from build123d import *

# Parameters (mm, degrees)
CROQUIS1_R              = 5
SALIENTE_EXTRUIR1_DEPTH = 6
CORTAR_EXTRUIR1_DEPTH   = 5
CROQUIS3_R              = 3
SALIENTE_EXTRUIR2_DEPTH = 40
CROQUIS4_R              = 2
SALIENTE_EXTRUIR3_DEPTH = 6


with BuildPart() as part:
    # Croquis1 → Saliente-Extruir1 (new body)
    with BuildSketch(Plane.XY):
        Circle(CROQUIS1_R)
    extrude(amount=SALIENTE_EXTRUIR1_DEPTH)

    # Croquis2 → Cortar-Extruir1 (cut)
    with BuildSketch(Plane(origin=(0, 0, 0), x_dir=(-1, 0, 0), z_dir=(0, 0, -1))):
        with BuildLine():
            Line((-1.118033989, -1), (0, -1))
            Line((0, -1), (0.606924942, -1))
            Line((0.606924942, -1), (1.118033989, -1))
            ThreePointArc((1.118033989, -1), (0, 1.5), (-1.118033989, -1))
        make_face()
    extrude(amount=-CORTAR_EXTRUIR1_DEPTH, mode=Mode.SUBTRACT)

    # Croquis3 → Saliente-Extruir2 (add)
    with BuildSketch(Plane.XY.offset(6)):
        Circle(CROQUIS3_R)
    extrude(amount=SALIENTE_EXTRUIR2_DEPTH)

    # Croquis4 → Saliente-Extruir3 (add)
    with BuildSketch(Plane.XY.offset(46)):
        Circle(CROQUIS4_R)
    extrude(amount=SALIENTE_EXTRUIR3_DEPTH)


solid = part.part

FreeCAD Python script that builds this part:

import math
import FreeCAD as App
import Part
import Sketcher

V = App.Vector

doc = App.newDocument("Part")
body = doc.addObject("PartDesign::Body", "Body")

# Sketch on XY plane
sketch1 = doc.addObject("Sketcher::SketchObject", "Sketch")
body.addObject(sketch1)
sketch1.AttachmentSupport = (doc.XY_Plane, [""])
sketch1.MapMode = "FlatFace"
sketch1.addGeometry(Part.Circle(V(0, 0, 0), V(0, 0, 1), 5), False)
sketch1.addConstraint(Sketcher.Constraint("Coincident", 0, 3, -1, 1))
sketch1.addConstraint(Sketcher.Constraint("Diameter", 0, 10.0))
pad1 = doc.addObject("PartDesign::Pad", "Pad")
body.addObject(pad1)
pad1.Profile = sketch1
pad1.Length = 6

# Sketch on XY plane
sketch2 = doc.addObject("Sketcher::SketchObject", "Sketch001")
body.addObject(sketch2)
sketch2.AttachmentSupport = (doc.XY_Plane, [""])
sketch2.MapMode = "FlatFace"
sketch2.addGeometry(Part.LineSegment(V(1.1, -1, 0), V(-1.1, -1, 0)), False)
sketch2.addGeometry(Part.ArcOfCircle(Part.Circle(V(0, 0, 0), V(0, 0, 1), 1.5), math.radians(-42), math.radians(222)), False)
sketch2.addConstraint(Sketcher.Constraint("Coincident", 0, 1, 1, 1))
sketch2.addConstraint(Sketcher.Constraint("Coincident", 1, 2, 0, 2))
sketch2.addConstraint(Sketcher.Constraint("Horizontal", 0))
sketch2.addConstraint(Sketcher.Constraint("Coincident", 1, 3, -1, 1))
sketch2.addConstraint(Sketcher.Constraint("Radius", 1, 1.5))
sketch2.addConstraint(Sketcher.Constraint("DistanceY", 0, 1, -1, 1, 1.0))
pocket1 = doc.addObject("PartDesign::Pocket", "Pocket")
body.addObject(pocket1)
pocket1.Profile = sketch2
pocket1.Length = 5
pocket1.Reversed = True

# Sketch on XY plane
sketch3 = doc.addObject("Sketcher::SketchObject", "Sketch002")
body.addObject(sketch3)
sketch3.AttachmentSupport = (doc.XY_Plane, [""])
sketch3.MapMode = "FlatFace"
sketch3.AttachmentOffset = App.Placement(V(0, 0, 6), App.Rotation())
sketch3.addGeometry(Part.Circle(V(0, 0, 0), V(0, 0, 1), 3), False)
sketch3.addConstraint(Sketcher.Constraint("Coincident", 0, 3, -1, 1))
sketch3.addConstraint(Sketcher.Constraint("Diameter", 0, 6.0))
pad2 = doc.addObject("PartDesign::Pad", "Pad001")
body.addObject(pad2)
pad2.Profile = sketch3
pad2.Length = 40

# Sketch on XY plane
sketch4 = doc.addObject("Sketcher::SketchObject", "Sketch003")
body.addObject(sketch4)
sketch4.AttachmentSupport = (doc.XY_Plane, [""])
sketch4.MapMode = "FlatFace"
sketch4.AttachmentOffset = App.Placement(V(0, 0, 46), App.Rotation())
sketch4.addGeometry(Part.Circle(V(0, 0, 0), V(0, 0, 1), 2), False)
sketch4.addConstraint(Sketcher.Constraint("Coincident", 0, 3, -1, 1))
sketch4.addConstraint(Sketcher.Constraint("Diameter", 0, 4.0))
pad3 = doc.addObject("PartDesign::Pad", "Pad002")
body.addObject(pad3)
pad3.Profile = sketch4
pad3.Length = 6

doc.recompute()
